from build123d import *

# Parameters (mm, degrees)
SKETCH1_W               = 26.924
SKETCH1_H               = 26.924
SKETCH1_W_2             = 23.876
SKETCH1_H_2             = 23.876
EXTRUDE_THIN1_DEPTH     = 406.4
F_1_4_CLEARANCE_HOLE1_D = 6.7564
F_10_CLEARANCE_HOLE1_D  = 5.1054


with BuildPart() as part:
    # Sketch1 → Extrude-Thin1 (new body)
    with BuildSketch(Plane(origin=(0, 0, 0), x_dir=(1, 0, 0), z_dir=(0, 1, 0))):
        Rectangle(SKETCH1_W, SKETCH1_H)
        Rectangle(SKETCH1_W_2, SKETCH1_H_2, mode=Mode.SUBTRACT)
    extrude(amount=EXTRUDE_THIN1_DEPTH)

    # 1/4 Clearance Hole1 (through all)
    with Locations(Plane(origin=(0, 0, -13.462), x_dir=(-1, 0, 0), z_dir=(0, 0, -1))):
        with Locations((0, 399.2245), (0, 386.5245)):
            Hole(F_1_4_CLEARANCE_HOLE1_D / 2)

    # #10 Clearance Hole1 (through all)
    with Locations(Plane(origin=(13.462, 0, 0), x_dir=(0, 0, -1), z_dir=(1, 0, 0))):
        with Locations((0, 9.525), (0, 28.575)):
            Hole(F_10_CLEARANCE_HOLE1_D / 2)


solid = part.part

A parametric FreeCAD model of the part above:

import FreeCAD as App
import Part
import Sketcher

V = App.Vector
Q = App.Units.Quantity


def add_polygon(sketch, points):
    """Adds a closed chain of lines whose ends are joined by coincident constraints."""
    first, n = sketch.GeometryCount, len(points)
    for a, b in zip(points, points[1:] + points[:1]):
        sketch.addGeometry(Part.LineSegment(App.Vector(*a, 0), App.Vector(*b, 0)), False)
    for i in range(n):
        sketch.addConstraint(Sketcher.Constraint("Coincident", first + i, 2, first + (i + 1) % n, 1))

doc = App.newDocument("Part")
body = doc.addObject("PartDesign::Body", "Body")

sketch1 = body.newObject("Sketcher::SketchObject", "Sketch")
sketch1.AttachmentSupport = (doc.getObject("XZ_Plane"), [""])
sketch1.MapMode = "FlatFace"
add_polygon(sketch1, [(-13.462, -13.462), (-13.462, 13.462), (13.462, 13.462), (13.462, -13.462)])
add_polygon(sketch1, [(11.938, 11.938), (-11.938, 11.938), (-11.938, -11.938), (11.938, -11.938)])
sketch1.addConstraint(Sketcher.Constraint("Vertical", 0))
sketch1.addConstraint(Sketcher.Constraint("Horizontal", 1))
sketch1.addConstraint(Sketcher.Constraint("Vertical", 2))
sketch1.addConstraint(Sketcher.Constraint("Horizontal", 3))
sketch1.addConstraint(Sketcher.Constraint("Horizontal", 4))
sketch1.addConstraint(Sketcher.Constraint("Vertical", 5))
sketch1.addConstraint(Sketcher.Constraint("Horizontal", 6))
sketch1.addConstraint(Sketcher.Constraint("Vertical", 7))
sketch1.addConstraint(Sketcher.Constraint("Symmetric", 0, 2, 2, 2, -1, 1))
sketch1.addConstraint(Sketcher.Constraint("Symmetric", 4, 2, 6, 2, -1, 1))
sketch1.addConstraint(Sketcher.Constraint("Equal", 3, 0))
sketch1.addConstraint(Sketcher.Constraint("Equal", 6, 5))
sketch1.addConstraint(Sketcher.Constraint("DistanceX", 4, 2, 1, 2, Q("1 in")))
sketch1.addConstraint(Sketcher.Constraint("DistanceX", 1, 1, 1, 2, Q("1.06 in")))
pad1 = body.newObject("PartDesign::Pad", "Pad")
pad1.Profile = sketch1
pad1.Length = Q("16 in")
pad1.Reversed = True

sketch2 = body.newObject("Sketcher::SketchObject", "Sketch001")
sketch2.AttachmentSupport = (doc.getObject("XY_Plane"), [""])
sketch2.MapMode = "FlatFace"
sketch2.AttachmentOffset = App.Placement(V(0, 0, -0.53 * 25.4), App.Rotation())
sketch2.addGeometry(Part.Circle(V(0, 399.2245, 0), V(0, 0, 1), 3.3782), False)
sketch2.addGeometry(Part.Circle(V(0, 386.5245, 0), V(0, 0, 1), 3.3782), False)
sketch2.addConstraint(Sketcher.Constraint("Equal", 0, 1))
sketch2.addConstraint(Sketcher.Constraint("PointOnObject", 0, 3, -2))
sketch2.addConstraint(Sketcher.Constraint("PointOnObject", 1, 3, -2))
sketch2.addConstraint(Sketcher.Constraint("Diameter", 0, Q("0.266 in")))
sketch2.addConstraint(Sketcher.Constraint("DistanceY", 1, 3, 0, 3, Q("0.5 in")))
sketch2.addConstraint(Sketcher.Constraint("DistanceY", -1, 1, 0, 3, Q("15.7175 in")))
doc.recompute()
hole = body.newObject("PartDesign::Hole", "Hole")
hole.Profile = sketch2
hole.ThreadType = "None"
hole.Diameter = Q("0.266 in")
hole.DepthType = "ThroughAll"
hole.Reversed = True

sketch3 = body.newObject("Sketcher::SketchObject", "Sketch002")
sketch3.AttachmentSupport = (doc.getObject("YZ_Plane"), [""])
sketch3.MapMode = "FlatFace"
sketch3.AttachmentOffset = App.Placement(V(0, 0, 0.53 * 25.4), App.Rotation())
sketch3.addGeometry(Part.Circle(V(9.525, 0, 0), V(0, 0, 1), 2.5527), False)
sketch3.addGeometry(Part.Circle(V(28.575, 0, 0), V(0, 0, 1), 2.5527), False)
sketch3.addConstraint(Sketcher.Constraint("Equal", 0, 1))
sketch3.addConstraint(Sketcher.Constraint("PointOnObject", 0, 3, -1))
sketch3.addConstraint(Sketcher.Constraint("PointOnObject", 1, 3, -1))
sketch3.addConstraint(Sketcher.Constraint("Diameter", 0, Q("0.201 in")))
sketch3.addConstraint(Sketcher.Constraint("DistanceX", 0, 3, 1, 3, Q("0.75 in")))
sketch3.addConstraint(Sketcher.Constraint("DistanceX", -1, 1, 0, 3, Q("0.375 in")))
doc.recompute()
hole2 = body.newObject("PartDesign::Hole", "Hole001")
hole2.Profile = sketch3
hole2.ThreadType = "None"
hole2.Diameter = Q("0.201 in")
hole2.DepthType = "ThroughAll"

doc.recompute()
